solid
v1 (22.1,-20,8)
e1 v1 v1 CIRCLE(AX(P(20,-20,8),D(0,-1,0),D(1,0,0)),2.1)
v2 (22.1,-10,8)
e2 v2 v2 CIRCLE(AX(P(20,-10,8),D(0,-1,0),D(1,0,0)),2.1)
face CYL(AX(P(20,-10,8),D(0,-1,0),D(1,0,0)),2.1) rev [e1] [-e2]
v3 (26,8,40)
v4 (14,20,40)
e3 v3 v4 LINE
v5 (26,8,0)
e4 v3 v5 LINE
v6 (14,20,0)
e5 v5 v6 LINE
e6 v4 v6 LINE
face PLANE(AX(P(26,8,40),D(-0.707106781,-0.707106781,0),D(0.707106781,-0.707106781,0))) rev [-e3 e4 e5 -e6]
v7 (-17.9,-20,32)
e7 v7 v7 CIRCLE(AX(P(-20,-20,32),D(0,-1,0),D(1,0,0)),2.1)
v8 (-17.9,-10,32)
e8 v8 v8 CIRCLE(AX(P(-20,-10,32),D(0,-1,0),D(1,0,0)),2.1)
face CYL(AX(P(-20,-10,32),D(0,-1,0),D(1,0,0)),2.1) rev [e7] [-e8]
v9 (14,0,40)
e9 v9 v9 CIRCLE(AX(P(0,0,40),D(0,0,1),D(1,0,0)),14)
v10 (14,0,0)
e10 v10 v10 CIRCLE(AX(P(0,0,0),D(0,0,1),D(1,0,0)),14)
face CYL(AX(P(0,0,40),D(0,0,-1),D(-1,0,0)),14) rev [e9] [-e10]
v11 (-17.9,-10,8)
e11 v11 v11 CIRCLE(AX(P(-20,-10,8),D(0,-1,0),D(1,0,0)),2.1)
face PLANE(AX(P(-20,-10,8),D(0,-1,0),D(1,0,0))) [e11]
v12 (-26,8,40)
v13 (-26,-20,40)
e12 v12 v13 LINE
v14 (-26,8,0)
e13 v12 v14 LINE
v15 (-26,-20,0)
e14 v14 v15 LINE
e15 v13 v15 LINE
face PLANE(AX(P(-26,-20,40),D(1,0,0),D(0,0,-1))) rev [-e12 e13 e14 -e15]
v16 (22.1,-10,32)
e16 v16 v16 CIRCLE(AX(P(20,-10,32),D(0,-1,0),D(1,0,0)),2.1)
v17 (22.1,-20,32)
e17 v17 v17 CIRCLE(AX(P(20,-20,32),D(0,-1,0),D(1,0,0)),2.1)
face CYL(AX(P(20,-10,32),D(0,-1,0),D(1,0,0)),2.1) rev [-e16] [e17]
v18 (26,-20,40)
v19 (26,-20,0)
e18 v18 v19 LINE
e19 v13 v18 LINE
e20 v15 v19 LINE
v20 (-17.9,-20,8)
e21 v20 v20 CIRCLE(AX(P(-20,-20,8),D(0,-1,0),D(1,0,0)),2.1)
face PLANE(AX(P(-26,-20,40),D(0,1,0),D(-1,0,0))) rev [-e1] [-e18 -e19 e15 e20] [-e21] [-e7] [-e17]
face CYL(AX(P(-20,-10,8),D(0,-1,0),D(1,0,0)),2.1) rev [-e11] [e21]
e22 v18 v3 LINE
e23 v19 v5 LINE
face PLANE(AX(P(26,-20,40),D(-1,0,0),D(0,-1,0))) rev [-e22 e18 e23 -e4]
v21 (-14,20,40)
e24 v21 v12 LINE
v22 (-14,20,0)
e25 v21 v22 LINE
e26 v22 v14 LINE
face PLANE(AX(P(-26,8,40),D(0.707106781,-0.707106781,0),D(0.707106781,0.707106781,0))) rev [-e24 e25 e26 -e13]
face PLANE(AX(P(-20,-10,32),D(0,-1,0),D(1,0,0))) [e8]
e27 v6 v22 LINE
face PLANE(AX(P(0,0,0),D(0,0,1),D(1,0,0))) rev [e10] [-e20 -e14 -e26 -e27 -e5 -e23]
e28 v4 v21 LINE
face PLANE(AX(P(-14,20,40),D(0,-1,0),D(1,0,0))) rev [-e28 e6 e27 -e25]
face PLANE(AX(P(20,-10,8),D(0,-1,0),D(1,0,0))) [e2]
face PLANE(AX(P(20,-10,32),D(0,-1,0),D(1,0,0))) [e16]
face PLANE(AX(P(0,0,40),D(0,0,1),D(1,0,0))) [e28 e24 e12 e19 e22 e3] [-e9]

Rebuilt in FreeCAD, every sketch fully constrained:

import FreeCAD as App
import Part
import Sketcher

V = App.Vector

doc = App.newDocument("Part")
body = doc.addObject("PartDesign::Body", "Body")

sketch1 = body.newObject("Sketcher::SketchObject", "Sketch")
sketch1.AttachmentSupport = (doc.getObject("XY_Plane"), [""])
sketch1.MapMode = "FlatFace"
sketch1.addGeometry([
    Part.LineSegment(V(14, 20, 0), V(-14, 20, 0)),
    Part.LineSegment(V(-14, 20, 0), V(-26, 8, 0)),
    Part.LineSegment(V(-26, 8, 0), V(-26, -20, 0)),
    Part.LineSegment(V(-26, -20, 0), V(26, -20, 0)),
    Part.LineSegment(V(26, -20, 0), V(26, 8, 0)),
    Part.LineSegment(V(26, 8, 0), V(14, 20, 0)),
    Part.Circle(V(0, 0, 0), V(0, 0, 1), 14),
], False)
sketch1.addConstraint([
    Sketcher.Constraint("Coincident", 0, 2, 1, 1),
    Sketcher.Constraint("Coincident", 1, 2, 2, 1),
    Sketcher.Constraint("Coincident", 2, 2, 3, 1),
    Sketcher.Constraint("Coincident", 3, 2, 4, 1),
    Sketcher.Constraint("Coincident", 4, 2, 5, 1),
    Sketcher.Constraint("Coincident", 5, 2, 0, 1),
    Sketcher.Constraint("Horizontal", 0),
    Sketcher.Constraint("Vertical", 2),
    Sketcher.Constraint("Horizontal", 3),
    Sketcher.Constraint("Vertical", 4),
    Sketcher.Constraint("Coincident", 6, 3, -1, 1),
    Sketcher.Constraint("Symmetric", 1, 2, 4, 2, -2),
    Sketcher.Constraint("Perpendicular", 1, 5),
    Sketcher.Constraint("Equal", 0, 2),
    Sketcher.Constraint("Equal", 1, 5),
    Sketcher.Constraint("Diameter", 6, 28.0),
    Sketcher.Constraint("DistanceX", 0, 2, 0, 1, 28.0),
    Sketcher.Constraint("DistanceX", 3, 1, 3, 2, 52.0),
    Sketcher.Constraint("DistanceY", -1, 1, 0, 2, 20.0),
])
pad1 = body.newObject("PartDesign::Pad", "Pad")
pad1.Profile = sketch1
pad1.Length = 40

sketch2 = body.newObject("Sketcher::SketchObject", "Sketch001")
sketch2.AttachmentSupport = (doc.getObject("XZ_Plane"), [""])
sketch2.MapMode = "FlatFace"
sketch2.AttachmentOffset = App.Placement(V(0, 0, 20), App.Rotation())
sketch2.addGeometry([
    Part.Circle(V(-20, 32, 0), V(0, 0, 1), 2.1),
    Part.Circle(V(20, 32, 0), V(0, 0, 1), 2.1),
    Part.Circle(V(20, 8, 0), V(0, 0, 1), 2.1),
    Part.Circle(V(-20, 8, 0), V(0, 0, 1), 2.1),
], False)
sketch2.addConstraint([
    Sketcher.Constraint("Equal", 0, 1),
    Sketcher.Constraint("Equal", 1, 2),
    Sketcher.Constraint("Equal", 2, 3),
    Sketcher.Constraint("Symmetric", 0, 3, 1, 3, -2),
    Sketcher.Constraint("Symmetric", 2, 3, 3, 3, -2),
    Sketcher.Constraint("Vertical", 1, 3, 2, 3),
    Sketcher.Constraint("Diameter", 0, 4.2),
    Sketcher.Constraint("DistanceX", 0, 3, -1, 1, 20.0),
    Sketcher.Constraint("DistanceY", -1, 1, 0, 3, 32.0),
    Sketcher.Constraint("DistanceY", -1, 1, 2, 3, 8.0),
])
pocket1 = body.newObject("PartDesign::Pocket", "Pocket")
pocket1.Profile = sketch2
pocket1.Length = 10

doc.recompute()
